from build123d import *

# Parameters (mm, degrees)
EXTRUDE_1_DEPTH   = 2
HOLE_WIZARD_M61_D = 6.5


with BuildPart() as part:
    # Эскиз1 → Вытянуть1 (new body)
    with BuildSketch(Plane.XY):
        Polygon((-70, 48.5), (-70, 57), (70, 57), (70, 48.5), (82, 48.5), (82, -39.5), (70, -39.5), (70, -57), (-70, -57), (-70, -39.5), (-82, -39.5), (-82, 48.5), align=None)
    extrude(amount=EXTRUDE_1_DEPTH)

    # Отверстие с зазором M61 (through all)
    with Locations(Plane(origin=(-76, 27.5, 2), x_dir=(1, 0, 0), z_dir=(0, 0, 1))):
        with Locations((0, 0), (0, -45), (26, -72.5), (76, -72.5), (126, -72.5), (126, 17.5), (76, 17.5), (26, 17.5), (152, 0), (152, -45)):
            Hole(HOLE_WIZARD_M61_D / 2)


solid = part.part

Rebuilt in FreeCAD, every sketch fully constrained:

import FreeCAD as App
import Part
import Sketcher
from FreeCAD import Vector
Q = App.Units.Quantity

doc = App.newDocument("Part")
body = doc.addObject("PartDesign::Body", "Body")

# Sketch on XY plane
sketch1 = body.newObject("Sketcher::SketchObject", "Sketch")
sketch1.AttachmentSupport = (doc.getObject("XY_Plane"), [""])
sketch1.MapMode = "FlatFace"
sketch1.addGeometry(Part.LineSegment(Vector(-70, 57, 0), Vector(-70, 48, 0)), False)
sketch1.addGeometry(Part.LineSegment(Vector(-70, 48, 0), Vector(-82, 48, 0)), False)
sketch1.addGeometry(Part.LineSegment(Vector(-82, 48, 0), Vector(-82, -40, 0)), False)
sketch1.addGeometry(Part.LineSegment(Vector(-82, -40, 0), Vector(-70, -40, 0)), False)
sketch1.addGeometry(Part.LineSegment(Vector(-70, -40, 0), Vector(-70, -57, 0)), False)
sketch1.addGeometry(Part.LineSegment(Vector(-70, -57, 0), Vector(70, -57, 0)), False)
sketch1.addGeometry(Part.LineSegment(Vector(70, -57, 0), Vector(70, -40, 0)), False)
sketch1.addGeometry(Part.LineSegment(Vector(70, -40, 0), Vector(82, -40, 0)), False)
sketch1.addGeometry(Part.LineSegment(Vector(82, -40, 0), Vector(82, 48, 0)), False)
sketch1.addGeometry(Part.LineSegment(Vector(82, 48, 0), Vector(70, 48, 0)), False)
sketch1.addGeometry(Part.LineSegment(Vector(70, 48, 0), Vector(70, 57, 0)), False)
sketch1.addGeometry(Part.LineSegment(Vector(70, 57, 0), Vector(-70, 57, 0)), False)
sketch1.addConstraint(Sketcher.Constraint("Coincident", 0, 2, 1, 1))
sketch1.addConstraint(Sketcher.Constraint("Coincident", 1, 2, 2, 1))
sketch1.addConstraint(Sketcher.Constraint("Coincident", 2, 2, 3, 1))
sketch1.addConstraint(Sketcher.Constraint("Coincident", 3, 2, 4, 1))
sketch1.addConstraint(Sketcher.Constraint("Coincident", 4, 2, 5, 1))
sketch1.addConstraint(Sketcher.Constraint("Coincident", 5, 2, 6, 1))
sketch1.addConstraint(Sketcher.Constraint("Coincident", 6, 2, 7, 1))
sketch1.addConstraint(Sketcher.Constraint("Coincident", 7, 2, 8, 1))
sketch1.addConstraint(Sketcher.Constraint("Coincident", 8, 2, 9, 1))
sketch1.addConstraint(Sketcher.Constraint("Coincident", 9, 2, 10, 1))
sketch1.addConstraint(Sketcher.Constraint("Coincident", 10, 2, 11, 1))
sketch1.addConstraint(Sketcher.Constraint("Coincident", 11, 2, 0, 1))
sketch1.addConstraint(Sketcher.Constraint("Vertical", 0))
sketch1.addConstraint(Sketcher.Constraint("Horizontal", 1))
sketch1.addConstraint(Sketcher.Constraint("Vertical", 2))
sketch1.addConstraint(Sketcher.Constraint("Horizontal", 3))
sketch1.addConstraint(Sketcher.Constraint("Vertical", 4))
sketch1.addConstraint(Sketcher.Constraint("Horizontal", 5))
sketch1.addConstraint(Sketcher.Constraint("Vertical", 6))
sketch1.addConstraint(Sketcher.Constraint("Horizontal", 7))
sketch1.addConstraint(Sketcher.Constraint("Vertical", 8))
sketch1.addConstraint(Sketcher.Constraint("Horizontal", 9))
sketch1.addConstraint(Sketcher.Constraint("Vertical", 10))
sketch1.addConstraint(Sketcher.Constraint("Horizontal", 11))
sketch1.addConstraint(Sketcher.Constraint("Symmetric", 4, 2, 10, 2, -1, 1))
sketch1.addConstraint(Sketcher.Constraint("Symmetric", 3, 2, 6, 2, -2))
sketch1.addConstraint(Sketcher.Constraint("Symmetric", 1, 2, 8, 2, -2))
sketch1.addConstraint(Sketcher.Constraint("Vertical", 0, 2, 3, 2))
sketch1.addConstraint(Sketcher.Constraint("DistanceX", 1, 2, 1, 1, Q("12 mm")))
sketch1.addConstraint(Sketcher.Constraint("DistanceX", 5, 1, 5, 2, Q("140 mm")))
sketch1.addConstraint(Sketcher.Constraint("DistanceY", 2, 2, 2, 1, Q("88 mm")))
sketch1.addConstraint(Sketcher.Constraint("DistanceY", 0, 2, 0, 1, Q("8.5 mm")))
sketch1.addConstraint(Sketcher.Constraint("DistanceY", 4, 2, 4, 1, Q("17.5 mm")))
pad1 = body.newObject("PartDesign::Pad", "Pad")
pad1.Profile = sketch1
pad1.Length = 2

# Sketch on XY plane
sketch2 = body.newObject("Sketcher::SketchObject", "Sketch001")
sketch2.AttachmentSupport = (doc.getObject("XY_Plane"), [""])
sketch2.MapMode = "FlatFace"
sketch2.AttachmentOffset = App.Placement(Vector(0, 0, 2), App.Rotation())
sketch2.addGeometry(Part.Circle(Vector(-76, 27.5, 0), Vector(0, 0, 1), 3.2), False)
sketch2.addGeometry(Part.Circle(Vector(-76, -17.5, 0), Vector(0, 0, 1), 3.2), False)
sketch2.addGeometry(Part.Circle(Vector(-50, -45, 0), Vector(0, 0, 1), 3.2), False)
sketch2.addGeometry(Part.Circle(Vector(0, -45, 0), Vector(0, 0, 1), 3.2), False)
sketch2.addGeometry(Part.Circle(Vector(50, -45, 0), Vector(0, 0, 1), 3.2), False)
sketch2.addGeometry(Part.Circle(Vector(50, 45, 0), Vector(0, 0, 1), 3.2), False)
sketch2.addGeometry(Part.Circle(Vector(0, 45, 0), Vector(0, 0, 1), 3.2), False)
sketch2.addGeometry(Part.Circle(Vector(-50, 45, 0), Vector(0, 0, 1), 3.2), False)
sketch2.addGeometry(Part.Circle(Vector(76, 27.5, 0), Vector(0, 0, 1), 3.2), False)
sketch2.addGeometry(Part.Circle(Vector(76, -17.5, 0), Vector(0, 0, 1), 3.2), False)
sketch2.addConstraint(Sketcher.Constraint("Equal", 0, 1))
sketch2.addConstraint(Sketcher.Constraint("Equal", 1, 2))
sketch2.addConstraint(Sketcher.Constraint("Equal", 2, 3))
sketch2.addConstraint(Sketcher.Constraint("Equal", 3, 4))
sketch2.addConstraint(Sketcher.Constraint("Equal", 4, 5))
sketch2.addConstraint(Sketcher.Constraint("Equal", 5, 6))
sketch2.addConstraint(Sketcher.Constraint("Equal", 6, 7))
sketch2.addConstraint(Sketcher.Constraint("Equal", 7, 8))
sketch2.addConstraint(Sketcher.Constraint("Equal", 8, 9))
sketch2.addConstraint(Sketcher.Constraint("Symmetric", 2, 3, 5, 3, -1, 1))
sketch2.addConstraint(Sketcher.Constraint("Symmetric", 3, 3, 6, 3, -1, 1))
sketch2.addConstraint(Sketcher.Constraint("Symmetric", 4, 3, 7, 3, -1, 1))
sketch2.addConstraint(Sketcher.Constraint("Symmetric", 2, 3, 4, 3, -2))
sketch2.addConstraint(Sketcher.Constraint("Symmetric", 0, 3, 8, 3, -2))
sketch2.addConstraint(Sketcher.Constraint("Symmetric", 1, 3, 9, 3, -2))
sketch2.addConstraint(Sketcher.Constraint("PointOnObject", 3, 3, -2))
sketch2.addConstraint(Sketcher.Constraint("Horizontal", 2, 3, 3, 3))
sketch2.addConstraint(Sketcher.Constraint("Vertical", 0, 3, 1, 3))
sketch2.addConstraint(Sketcher.Constraint("Diameter", 0, Q("6.5 mm")))
sketch2.addConstraint(Sketcher.Constraint("DistanceX", 0, 3, -1, 1, Q("76 mm")))
sketch2.addConstraint(Sketcher.Constraint("DistanceX", 2, 3, -1, 1, Q("50 mm")))
sketch2.addConstraint(Sketcher.Constraint("DistanceY", 2, 3, -1, 1, Q("45 mm")))
sketch2.addConstraint(Sketcher.Constraint("DistanceY", 1, 3, 0, 3, Q("45 mm")))
sketch2.addConstraint(Sketcher.Constraint("DistanceY", -1, 1, 0, 3, Q("27.5 mm")))
doc.recompute()
hole = body.newObject("PartDesign::Hole", "Hole")
hole.Profile = sketch2
hole.ThreadType = "None"
hole.Diameter = 6.5
hole.DepthType = "ThroughAll"

doc.recompute()
